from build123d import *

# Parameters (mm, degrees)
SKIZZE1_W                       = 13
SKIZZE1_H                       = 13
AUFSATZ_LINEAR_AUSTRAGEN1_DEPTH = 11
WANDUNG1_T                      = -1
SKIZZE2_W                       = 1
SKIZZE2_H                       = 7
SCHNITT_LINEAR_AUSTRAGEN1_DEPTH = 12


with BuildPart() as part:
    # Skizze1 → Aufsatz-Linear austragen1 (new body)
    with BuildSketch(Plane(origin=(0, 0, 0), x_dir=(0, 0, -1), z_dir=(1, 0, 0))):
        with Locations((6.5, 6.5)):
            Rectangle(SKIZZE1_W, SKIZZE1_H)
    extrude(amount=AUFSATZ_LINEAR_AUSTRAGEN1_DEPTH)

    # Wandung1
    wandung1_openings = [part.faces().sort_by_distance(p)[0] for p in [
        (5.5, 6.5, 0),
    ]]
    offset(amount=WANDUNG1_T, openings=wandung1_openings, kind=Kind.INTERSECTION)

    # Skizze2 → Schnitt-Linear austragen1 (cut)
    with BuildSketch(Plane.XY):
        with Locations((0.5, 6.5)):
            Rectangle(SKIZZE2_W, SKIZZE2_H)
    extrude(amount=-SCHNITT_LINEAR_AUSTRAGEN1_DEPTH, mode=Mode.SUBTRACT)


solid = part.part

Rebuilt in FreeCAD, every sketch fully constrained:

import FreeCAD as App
import Part
import Sketcher
Q = App.Units.Quantity


def faces_at(feature, points):
    """Names of the faces that lie closest to the given points."""
    faces = feature.Shape.Faces
    near = lambda p: min(range(len(faces)), key=lambda i: faces[i].distToShape(Part.Vertex(*p))[0])
    return sorted({f"Face{near(p) + 1}" for p in points})

doc = App.newDocument("Part")
body = doc.addObject("PartDesign::Body", "Body")

# Sketch on YZ plane
sketch1 = body.newObject("Sketcher::SketchObject", "Sketch")
sketch1.AttachmentSupport = (doc.getObject("YZ_Plane"), [""])
sketch1.MapMode = "FlatFace"
sketch1.addGeometry([
    Part.LineSegment(App.Vector(13, 0, 0), App.Vector(0, 0, 0)),
    Part.LineSegment(App.Vector(0, 0, 0), App.Vector(0, -13, 0)),
    Part.LineSegment(App.Vector(0, -13, 0), App.Vector(13, -13, 0)),
    Part.LineSegment(App.Vector(13, -13, 0), App.Vector(13, 0, 0)),
], False)
sketch1.addConstraint([
    Sketcher.Constraint("Coincident", 0, 2, 1, 1),
    Sketcher.Constraint("Coincident", 1, 2, 2, 1),
    Sketcher.Constraint("Coincident", 2, 2, 3, 1),
    Sketcher.Constraint("Coincident", 3, 2, 0, 1),
    Sketcher.Constraint("Horizontal", 0),
    Sketcher.Constraint("Vertical", 1),
    Sketcher.Constraint("Horizontal", 2),
    Sketcher.Constraint("Vertical", 3),
    Sketcher.Constraint("Coincident", 0, 2, -1, 1),
    Sketcher.Constraint("Equal", 2, 1),
    Sketcher.Constraint("DistanceX", 0, 2, 0, 1, Q("13 mm")),
])
pad1 = body.newObject("PartDesign::Pad", "Pad")
pad1.Profile = sketch1
pad1.Length = 11
doc.recompute()

thickness = body.newObject("PartDesign::Thickness", "Thickness")
thickness.Base = (pad1, faces_at(pad1, [(5.5, 6.5, 0)]))
thickness.Value = 1
thickness.Reversed = True
thickness.Join = "Intersection"

# Sketch on XY plane
sketch2 = body.newObject("Sketcher::SketchObject", "Sketch001")
sketch2.AttachmentSupport = (doc.getObject("XY_Plane"), [""])
sketch2.MapMode = "FlatFace"
sketch2.addGeometry([
    Part.LineSegment(App.Vector(0, 10, 0), App.Vector(0, 3, 0)),
    Part.LineSegment(App.Vector(0, 3, 0), App.Vector(1, 3, 0)),
    Part.LineSegment(App.Vector(1, 3, 0), App.Vector(1, 10, 0)),
    Part.LineSegment(App.Vector(1, 10, 0), App.Vector(0, 10, 0)),
], False)
sketch2.addConstraint([
    Sketcher.Constraint("Coincident", 0, 2, 1, 1),
    Sketcher.Constraint("Coincident", 1, 2, 2, 1),
    Sketcher.Constraint("Coincident", 2, 2, 3, 1),
    Sketcher.Constraint("Coincident", 3, 2, 0, 1),
    Sketcher.Constraint("Vertical", 0),
    Sketcher.Constraint("Horizontal", 1),
    Sketcher.Constraint("Vertical", 2),
    Sketcher.Constraint("Horizontal", 3),
    Sketcher.Constraint("PointOnObject", 0, 2, -2),
    Sketcher.Constraint("DistanceX", 1, 1, 1, 2, Q("1 mm")),
    Sketcher.Constraint("DistanceY", 0, 2, 0, 1, Q("7 mm")),
    Sketcher.Constraint("DistanceY", -1, 1, 0, 2, Q("3 mm")),
])
pocket1 = body.newObject("PartDesign::Pocket", "Pocket")
pocket1.Profile = sketch2
pocket1.Length = 12

doc.recompute()
